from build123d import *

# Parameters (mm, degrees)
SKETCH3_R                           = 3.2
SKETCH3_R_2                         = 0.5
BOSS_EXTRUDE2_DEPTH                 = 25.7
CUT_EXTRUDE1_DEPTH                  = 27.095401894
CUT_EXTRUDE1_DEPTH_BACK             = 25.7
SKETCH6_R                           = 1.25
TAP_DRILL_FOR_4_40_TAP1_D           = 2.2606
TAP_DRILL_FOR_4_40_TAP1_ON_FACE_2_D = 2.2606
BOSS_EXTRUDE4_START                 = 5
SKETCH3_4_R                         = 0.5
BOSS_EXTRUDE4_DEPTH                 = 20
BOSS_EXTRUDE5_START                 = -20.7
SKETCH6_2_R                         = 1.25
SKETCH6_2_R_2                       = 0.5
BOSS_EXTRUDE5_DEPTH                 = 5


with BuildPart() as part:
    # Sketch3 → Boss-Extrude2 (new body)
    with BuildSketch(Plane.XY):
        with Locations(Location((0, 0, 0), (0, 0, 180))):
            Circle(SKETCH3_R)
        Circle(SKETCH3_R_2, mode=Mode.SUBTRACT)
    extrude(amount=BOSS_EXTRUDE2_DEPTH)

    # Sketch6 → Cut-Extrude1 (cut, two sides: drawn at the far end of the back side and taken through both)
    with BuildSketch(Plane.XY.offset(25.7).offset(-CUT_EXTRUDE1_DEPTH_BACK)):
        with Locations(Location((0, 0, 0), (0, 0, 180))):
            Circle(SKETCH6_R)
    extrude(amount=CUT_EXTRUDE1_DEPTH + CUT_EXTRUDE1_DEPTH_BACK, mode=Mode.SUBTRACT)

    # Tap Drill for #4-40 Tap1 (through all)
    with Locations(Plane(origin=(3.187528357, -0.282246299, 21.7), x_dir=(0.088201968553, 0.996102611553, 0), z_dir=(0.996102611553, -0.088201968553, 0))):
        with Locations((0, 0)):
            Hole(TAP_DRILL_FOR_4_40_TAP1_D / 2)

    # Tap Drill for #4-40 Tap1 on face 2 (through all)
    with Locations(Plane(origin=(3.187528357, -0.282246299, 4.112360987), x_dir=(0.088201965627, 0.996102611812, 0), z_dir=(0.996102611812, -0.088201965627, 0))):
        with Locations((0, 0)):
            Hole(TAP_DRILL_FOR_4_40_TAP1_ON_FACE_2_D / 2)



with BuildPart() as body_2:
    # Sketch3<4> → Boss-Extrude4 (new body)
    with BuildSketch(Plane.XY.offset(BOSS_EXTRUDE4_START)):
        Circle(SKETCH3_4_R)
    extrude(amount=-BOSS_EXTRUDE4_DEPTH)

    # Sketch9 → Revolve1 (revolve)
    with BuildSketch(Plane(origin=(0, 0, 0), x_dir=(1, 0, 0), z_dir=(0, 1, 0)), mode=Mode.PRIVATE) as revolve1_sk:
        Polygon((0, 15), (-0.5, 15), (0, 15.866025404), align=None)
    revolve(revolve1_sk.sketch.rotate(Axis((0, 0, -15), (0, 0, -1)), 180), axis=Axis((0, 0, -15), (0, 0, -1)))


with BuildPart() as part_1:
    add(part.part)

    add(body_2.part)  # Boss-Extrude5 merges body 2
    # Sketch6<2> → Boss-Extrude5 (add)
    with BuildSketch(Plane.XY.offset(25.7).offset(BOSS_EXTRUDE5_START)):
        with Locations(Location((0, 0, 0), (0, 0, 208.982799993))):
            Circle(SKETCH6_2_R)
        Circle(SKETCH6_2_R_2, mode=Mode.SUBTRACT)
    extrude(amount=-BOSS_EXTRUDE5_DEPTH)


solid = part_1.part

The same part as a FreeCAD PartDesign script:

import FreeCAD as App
import Part
import Sketcher

V = App.Vector
Q = App.Units.Quantity

doc = App.newDocument("Part")
body = doc.addObject("PartDesign::Body", "Body")

# Sketch on XY plane
sketch1 = body.newObject("Sketcher::SketchObject", "Sketch")
sketch1.AttachmentSupport = (doc.getObject("XY_Plane"), [""])
sketch1.MapMode = "FlatFace"
sketch1.addGeometry(Part.Circle(V(0, 0, 0), V(0, 0, 1), 3.2), False)
sketch1.addGeometry(Part.Circle(V(0, 0, 0), V(0, 0, 1), 0.5), False)
sketch1.addConstraint(Sketcher.Constraint("Coincident", 0, 3, -1, 1))
sketch1.addConstraint(Sketcher.Constraint("Coincident", 1, 3, -1, 1))
sketch1.addConstraint(Sketcher.Constraint("Diameter", 1, 1.0))
sketch1.addConstraint(Sketcher.Constraint("Diameter", 0, 6.4))
pad1 = body.newObject("PartDesign::Pad", "Pad")
pad1.Profile = sketch1
pad1.Length = 25.7

# Sketch on XY plane
sketch2 = body.newObject("Sketcher::SketchObject", "Sketch001")
sketch2.AttachmentSupport = (doc.getObject("XY_Plane"), [""])
sketch2.MapMode = "FlatFace"
sketch2.AttachmentOffset = App.Placement(V(0, 0, 25.7), App.Rotation())
sketch2.addGeometry(Part.Circle(V(0, 0, 0), V(0, 0, 1), 1.25), False)
sketch2.addConstraint(Sketcher.Constraint("Coincident", 0, 3, -1, 1))
sketch2.addConstraint(Sketcher.Constraint("Diameter", 0, 2.5))
pocket1 = body.newObject("PartDesign::Pocket", "Pocket")
pocket1.Profile = sketch2
pocket1.Type = "ThroughAll"
pocket1.Midplane = True

# Sketch on an angled plane
sketch3 = body.newObject("Sketcher::SketchObject", "Sketch002")
sketch3.Placement = App.Placement(V(3.187528, -0.282246, 0), App.Rotation(V(0.088201969, 0.996102612, 0), V(0, 0, 1.000000001), V(0.996102612, -0.088201969, 0), "ZXY"))
sketch3.addGeometry(Part.Circle(V(0, 21.7, 0), V(0, 0, 1), 1.1303), False)
sketch3.addConstraint(Sketcher.Constraint("PointOnObject", 0, 3, -2))
sketch3.addConstraint(Sketcher.Constraint("Diameter", 0, 2.2606))
sketch3.addConstraint(Sketcher.Constraint("DistanceY", -1, 1, 0, 3, 21.7))
doc.recompute()
hole = body.newObject("PartDesign::Hole", "Hole")
hole.Profile = sketch3
hole.ThreadType = "None"
hole.Diameter = 2.2606
hole.DepthType = "ThroughAll"

# Sketch on an angled plane
sketch4 = body.newObject("Sketcher::SketchObject", "Sketch003")
sketch4.Placement = App.Placement(V(3.187528, -0.282246, 0), App.Rotation(V(0.088201966, 0.996102612, 0), V(0, 0, 1), V(0.996102612, -0.088201966, 0), "ZXY"))
sketch4.addGeometry(Part.Circle(V(0, 4.112361, 0), V(0, 0, 1), 1.1303), False)
sketch4.addConstraint(Sketcher.Constraint("PointOnObject", 0, 3, -2))
sketch4.addConstraint(Sketcher.Constraint("Diameter", 0, 2.2606))
sketch4.addConstraint(Sketcher.Constraint("DistanceY", -1, 1, 0, 3, 4.112361))
doc.recompute()
hole2 = body.newObject("PartDesign::Hole", "Hole001")
hole2.Profile = sketch4
hole2.ThreadType = "None"
hole2.Diameter = 2.2606
hole2.DepthType = "ThroughAll"
body2 = doc.addObject("PartDesign::Body", "Body001")

# Sketch on XY plane
sketch5 = body2.newObject("Sketcher::SketchObject", "Sketch004")
sketch5.AttachmentSupport = (doc.getObject("XY_Plane001"), [""])
sketch5.MapMode = "FlatFace"
sketch5.AttachmentOffset = App.Placement(V(0, 0, 5), App.Rotation())
sketch5.addGeometry(Part.Circle(V(0, 0, 0), V(0, 0, 1), 0.5), False)
sketch5.addConstraint(Sketcher.Constraint("Coincident", 0, 3, -1, 1))
sketch5.addConstraint(Sketcher.Constraint("Diameter", 0, 1.0))
pad2 = body2.newObject("PartDesign::Pad", "Pad001")
pad2.Profile = sketch5
pad2.Length = 20
pad2.Reversed = True

# Sketch on XZ plane
sketch6 = body2.newObject("Sketcher::SketchObject", "Sketch005")
sketch6.AttachmentSupport = (doc.getObject("XZ_Plane001"), [""])
sketch6.MapMode = "FlatFace"
sketch6.addGeometry(Part.LineSegment(V(-0.5, -15, 0), V(0, -15, 0)), False)
sketch6.addGeometry(Part.LineSegment(V(0, -15, 0), V(0, -15.866025, 0)), False)
sketch6.addGeometry(Part.LineSegment(V(0, -15.866025, 0), V(-0.5, -15, 0)), False)
sketch6.addConstraint(Sketcher.Constraint("Coincident", 0, 2, 1, 1))
sketch6.addConstraint(Sketcher.Constraint("Coincident", 1, 2, 2, 1))
sketch6.addConstraint(Sketcher.Constraint("Coincident", 2, 2, 0, 1))
sketch6.addConstraint(Sketcher.Constraint("Horizontal", 0))
sketch6.addConstraint(Sketcher.Constraint("Vertical", 1))
sketch6.addConstraint(Sketcher.Constraint("PointOnObject", 0, 2, -2))
sketch6.addConstraint(Sketcher.Constraint("Angle", 2, Q("120 deg")))
sketch6.addConstraint(Sketcher.Constraint("Distance", 2, 1.0))
sketch6.addConstraint(Sketcher.Constraint("DistanceY", 0, 2, -1, 1, 15.0))
revolution = body2.newObject("PartDesign::Revolution", "Revolution")
revolution.Profile = sketch6
revolution.ReferenceAxis = (sketch6, ["V_Axis"])
revolution.Angle = 360
body.AllowCompound = True
doc.recompute()

boolean = body.newObject("PartDesign::Boolean", "Boolean")
boolean.Type = "Fuse"
boolean.addObjects([body2])

# Sketch on XY plane
sketch7 = body.newObject("Sketcher::SketchObject", "Sketch006")
sketch7.AttachmentSupport = (doc.getObject("XY_Plane"), [""])
sketch7.MapMode = "FlatFace"
sketch7.AttachmentOffset = App.Placement(V(0, 0, 5), App.Rotation())
sketch7.addGeometry(Part.Circle(V(0, 0, 0), V(0, 0, 1), 1.25), False)
sketch7.addGeometry(Part.Circle(V(0, 0, 0), V(0, 0, 1), 0.5), False)
sketch7.addConstraint(Sketcher.Constraint("Coincident", 0, 3, -1, 1))
sketch7.addConstraint(Sketcher.Constraint("Coincident", 1, 3, -1, 1))
sketch7.addConstraint(Sketcher.Constraint("Diameter", 1, 1.0))
sketch7.addConstraint(Sketcher.Constraint("Diameter", 0, 2.5))
pad3 = body.newObject("PartDesign::Pad", "Pad002")
pad3.Profile = sketch7
pad3.Length = 5
pad3.Reversed = True

doc.recompute()
